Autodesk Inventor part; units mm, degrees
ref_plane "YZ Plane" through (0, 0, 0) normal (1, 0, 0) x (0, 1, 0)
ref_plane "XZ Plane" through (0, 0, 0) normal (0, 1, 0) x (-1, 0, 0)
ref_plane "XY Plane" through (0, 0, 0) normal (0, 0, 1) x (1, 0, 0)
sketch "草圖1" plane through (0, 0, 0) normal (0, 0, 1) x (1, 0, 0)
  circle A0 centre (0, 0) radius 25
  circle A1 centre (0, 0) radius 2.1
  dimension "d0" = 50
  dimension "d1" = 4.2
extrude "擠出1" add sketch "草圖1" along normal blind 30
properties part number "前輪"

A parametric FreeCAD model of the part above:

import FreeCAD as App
import Part
import Sketcher
from FreeCAD import Vector

doc = App.newDocument("Part")
params = doc.addObject("Spreadsheet::Sheet", "Params")
for row, (alias, value) in enumerate([
    ("sketch1_diameter", "50 mm"),
    ("sketch1_diameter2", "4.2 mm"),
    ("pad1_length", "30 mm"),
], start=1):
    params.set(f"A{row}", alias)
    params.set(f"B{row}", "=" + value)
    params.setAlias(f"B{row}", alias)

body = doc.addObject("PartDesign::Body", "Body")

# Sketch on XY plane
sketch1 = body.newObject("Sketcher::SketchObject", "Sketch")
sketch1.AttachmentSupport = (doc.getObject("XY_Plane"), [""])
sketch1.MapMode = "FlatFace"
sketch1.addGeometry([
    Part.Circle(Vector(0, 0, 0), Vector(0, 0, 1), 25),
    Part.Circle(Vector(0, 0, 0), Vector(0, 0, 1), 2.1),
], False)
sketch1.addConstraint([
    Sketcher.Constraint("Coincident", 0, 3, -1, 1),
    Sketcher.Constraint("Coincident", 1, 3, -1, 1),
    Sketcher.Constraint("Diameter", 0, 50.0),
    Sketcher.Constraint("Diameter", 1, 4.2),
])
sketch1.setExpression("Constraints[2]", "Params.sketch1_diameter")
sketch1.setExpression("Constraints[3]", "Params.sketch1_diameter2")
pad1 = body.newObject("PartDesign::Pad", "Pad")
pad1.Profile = sketch1
pad1.setExpression("Length", "Params.pad1_length")

doc.recompute()
